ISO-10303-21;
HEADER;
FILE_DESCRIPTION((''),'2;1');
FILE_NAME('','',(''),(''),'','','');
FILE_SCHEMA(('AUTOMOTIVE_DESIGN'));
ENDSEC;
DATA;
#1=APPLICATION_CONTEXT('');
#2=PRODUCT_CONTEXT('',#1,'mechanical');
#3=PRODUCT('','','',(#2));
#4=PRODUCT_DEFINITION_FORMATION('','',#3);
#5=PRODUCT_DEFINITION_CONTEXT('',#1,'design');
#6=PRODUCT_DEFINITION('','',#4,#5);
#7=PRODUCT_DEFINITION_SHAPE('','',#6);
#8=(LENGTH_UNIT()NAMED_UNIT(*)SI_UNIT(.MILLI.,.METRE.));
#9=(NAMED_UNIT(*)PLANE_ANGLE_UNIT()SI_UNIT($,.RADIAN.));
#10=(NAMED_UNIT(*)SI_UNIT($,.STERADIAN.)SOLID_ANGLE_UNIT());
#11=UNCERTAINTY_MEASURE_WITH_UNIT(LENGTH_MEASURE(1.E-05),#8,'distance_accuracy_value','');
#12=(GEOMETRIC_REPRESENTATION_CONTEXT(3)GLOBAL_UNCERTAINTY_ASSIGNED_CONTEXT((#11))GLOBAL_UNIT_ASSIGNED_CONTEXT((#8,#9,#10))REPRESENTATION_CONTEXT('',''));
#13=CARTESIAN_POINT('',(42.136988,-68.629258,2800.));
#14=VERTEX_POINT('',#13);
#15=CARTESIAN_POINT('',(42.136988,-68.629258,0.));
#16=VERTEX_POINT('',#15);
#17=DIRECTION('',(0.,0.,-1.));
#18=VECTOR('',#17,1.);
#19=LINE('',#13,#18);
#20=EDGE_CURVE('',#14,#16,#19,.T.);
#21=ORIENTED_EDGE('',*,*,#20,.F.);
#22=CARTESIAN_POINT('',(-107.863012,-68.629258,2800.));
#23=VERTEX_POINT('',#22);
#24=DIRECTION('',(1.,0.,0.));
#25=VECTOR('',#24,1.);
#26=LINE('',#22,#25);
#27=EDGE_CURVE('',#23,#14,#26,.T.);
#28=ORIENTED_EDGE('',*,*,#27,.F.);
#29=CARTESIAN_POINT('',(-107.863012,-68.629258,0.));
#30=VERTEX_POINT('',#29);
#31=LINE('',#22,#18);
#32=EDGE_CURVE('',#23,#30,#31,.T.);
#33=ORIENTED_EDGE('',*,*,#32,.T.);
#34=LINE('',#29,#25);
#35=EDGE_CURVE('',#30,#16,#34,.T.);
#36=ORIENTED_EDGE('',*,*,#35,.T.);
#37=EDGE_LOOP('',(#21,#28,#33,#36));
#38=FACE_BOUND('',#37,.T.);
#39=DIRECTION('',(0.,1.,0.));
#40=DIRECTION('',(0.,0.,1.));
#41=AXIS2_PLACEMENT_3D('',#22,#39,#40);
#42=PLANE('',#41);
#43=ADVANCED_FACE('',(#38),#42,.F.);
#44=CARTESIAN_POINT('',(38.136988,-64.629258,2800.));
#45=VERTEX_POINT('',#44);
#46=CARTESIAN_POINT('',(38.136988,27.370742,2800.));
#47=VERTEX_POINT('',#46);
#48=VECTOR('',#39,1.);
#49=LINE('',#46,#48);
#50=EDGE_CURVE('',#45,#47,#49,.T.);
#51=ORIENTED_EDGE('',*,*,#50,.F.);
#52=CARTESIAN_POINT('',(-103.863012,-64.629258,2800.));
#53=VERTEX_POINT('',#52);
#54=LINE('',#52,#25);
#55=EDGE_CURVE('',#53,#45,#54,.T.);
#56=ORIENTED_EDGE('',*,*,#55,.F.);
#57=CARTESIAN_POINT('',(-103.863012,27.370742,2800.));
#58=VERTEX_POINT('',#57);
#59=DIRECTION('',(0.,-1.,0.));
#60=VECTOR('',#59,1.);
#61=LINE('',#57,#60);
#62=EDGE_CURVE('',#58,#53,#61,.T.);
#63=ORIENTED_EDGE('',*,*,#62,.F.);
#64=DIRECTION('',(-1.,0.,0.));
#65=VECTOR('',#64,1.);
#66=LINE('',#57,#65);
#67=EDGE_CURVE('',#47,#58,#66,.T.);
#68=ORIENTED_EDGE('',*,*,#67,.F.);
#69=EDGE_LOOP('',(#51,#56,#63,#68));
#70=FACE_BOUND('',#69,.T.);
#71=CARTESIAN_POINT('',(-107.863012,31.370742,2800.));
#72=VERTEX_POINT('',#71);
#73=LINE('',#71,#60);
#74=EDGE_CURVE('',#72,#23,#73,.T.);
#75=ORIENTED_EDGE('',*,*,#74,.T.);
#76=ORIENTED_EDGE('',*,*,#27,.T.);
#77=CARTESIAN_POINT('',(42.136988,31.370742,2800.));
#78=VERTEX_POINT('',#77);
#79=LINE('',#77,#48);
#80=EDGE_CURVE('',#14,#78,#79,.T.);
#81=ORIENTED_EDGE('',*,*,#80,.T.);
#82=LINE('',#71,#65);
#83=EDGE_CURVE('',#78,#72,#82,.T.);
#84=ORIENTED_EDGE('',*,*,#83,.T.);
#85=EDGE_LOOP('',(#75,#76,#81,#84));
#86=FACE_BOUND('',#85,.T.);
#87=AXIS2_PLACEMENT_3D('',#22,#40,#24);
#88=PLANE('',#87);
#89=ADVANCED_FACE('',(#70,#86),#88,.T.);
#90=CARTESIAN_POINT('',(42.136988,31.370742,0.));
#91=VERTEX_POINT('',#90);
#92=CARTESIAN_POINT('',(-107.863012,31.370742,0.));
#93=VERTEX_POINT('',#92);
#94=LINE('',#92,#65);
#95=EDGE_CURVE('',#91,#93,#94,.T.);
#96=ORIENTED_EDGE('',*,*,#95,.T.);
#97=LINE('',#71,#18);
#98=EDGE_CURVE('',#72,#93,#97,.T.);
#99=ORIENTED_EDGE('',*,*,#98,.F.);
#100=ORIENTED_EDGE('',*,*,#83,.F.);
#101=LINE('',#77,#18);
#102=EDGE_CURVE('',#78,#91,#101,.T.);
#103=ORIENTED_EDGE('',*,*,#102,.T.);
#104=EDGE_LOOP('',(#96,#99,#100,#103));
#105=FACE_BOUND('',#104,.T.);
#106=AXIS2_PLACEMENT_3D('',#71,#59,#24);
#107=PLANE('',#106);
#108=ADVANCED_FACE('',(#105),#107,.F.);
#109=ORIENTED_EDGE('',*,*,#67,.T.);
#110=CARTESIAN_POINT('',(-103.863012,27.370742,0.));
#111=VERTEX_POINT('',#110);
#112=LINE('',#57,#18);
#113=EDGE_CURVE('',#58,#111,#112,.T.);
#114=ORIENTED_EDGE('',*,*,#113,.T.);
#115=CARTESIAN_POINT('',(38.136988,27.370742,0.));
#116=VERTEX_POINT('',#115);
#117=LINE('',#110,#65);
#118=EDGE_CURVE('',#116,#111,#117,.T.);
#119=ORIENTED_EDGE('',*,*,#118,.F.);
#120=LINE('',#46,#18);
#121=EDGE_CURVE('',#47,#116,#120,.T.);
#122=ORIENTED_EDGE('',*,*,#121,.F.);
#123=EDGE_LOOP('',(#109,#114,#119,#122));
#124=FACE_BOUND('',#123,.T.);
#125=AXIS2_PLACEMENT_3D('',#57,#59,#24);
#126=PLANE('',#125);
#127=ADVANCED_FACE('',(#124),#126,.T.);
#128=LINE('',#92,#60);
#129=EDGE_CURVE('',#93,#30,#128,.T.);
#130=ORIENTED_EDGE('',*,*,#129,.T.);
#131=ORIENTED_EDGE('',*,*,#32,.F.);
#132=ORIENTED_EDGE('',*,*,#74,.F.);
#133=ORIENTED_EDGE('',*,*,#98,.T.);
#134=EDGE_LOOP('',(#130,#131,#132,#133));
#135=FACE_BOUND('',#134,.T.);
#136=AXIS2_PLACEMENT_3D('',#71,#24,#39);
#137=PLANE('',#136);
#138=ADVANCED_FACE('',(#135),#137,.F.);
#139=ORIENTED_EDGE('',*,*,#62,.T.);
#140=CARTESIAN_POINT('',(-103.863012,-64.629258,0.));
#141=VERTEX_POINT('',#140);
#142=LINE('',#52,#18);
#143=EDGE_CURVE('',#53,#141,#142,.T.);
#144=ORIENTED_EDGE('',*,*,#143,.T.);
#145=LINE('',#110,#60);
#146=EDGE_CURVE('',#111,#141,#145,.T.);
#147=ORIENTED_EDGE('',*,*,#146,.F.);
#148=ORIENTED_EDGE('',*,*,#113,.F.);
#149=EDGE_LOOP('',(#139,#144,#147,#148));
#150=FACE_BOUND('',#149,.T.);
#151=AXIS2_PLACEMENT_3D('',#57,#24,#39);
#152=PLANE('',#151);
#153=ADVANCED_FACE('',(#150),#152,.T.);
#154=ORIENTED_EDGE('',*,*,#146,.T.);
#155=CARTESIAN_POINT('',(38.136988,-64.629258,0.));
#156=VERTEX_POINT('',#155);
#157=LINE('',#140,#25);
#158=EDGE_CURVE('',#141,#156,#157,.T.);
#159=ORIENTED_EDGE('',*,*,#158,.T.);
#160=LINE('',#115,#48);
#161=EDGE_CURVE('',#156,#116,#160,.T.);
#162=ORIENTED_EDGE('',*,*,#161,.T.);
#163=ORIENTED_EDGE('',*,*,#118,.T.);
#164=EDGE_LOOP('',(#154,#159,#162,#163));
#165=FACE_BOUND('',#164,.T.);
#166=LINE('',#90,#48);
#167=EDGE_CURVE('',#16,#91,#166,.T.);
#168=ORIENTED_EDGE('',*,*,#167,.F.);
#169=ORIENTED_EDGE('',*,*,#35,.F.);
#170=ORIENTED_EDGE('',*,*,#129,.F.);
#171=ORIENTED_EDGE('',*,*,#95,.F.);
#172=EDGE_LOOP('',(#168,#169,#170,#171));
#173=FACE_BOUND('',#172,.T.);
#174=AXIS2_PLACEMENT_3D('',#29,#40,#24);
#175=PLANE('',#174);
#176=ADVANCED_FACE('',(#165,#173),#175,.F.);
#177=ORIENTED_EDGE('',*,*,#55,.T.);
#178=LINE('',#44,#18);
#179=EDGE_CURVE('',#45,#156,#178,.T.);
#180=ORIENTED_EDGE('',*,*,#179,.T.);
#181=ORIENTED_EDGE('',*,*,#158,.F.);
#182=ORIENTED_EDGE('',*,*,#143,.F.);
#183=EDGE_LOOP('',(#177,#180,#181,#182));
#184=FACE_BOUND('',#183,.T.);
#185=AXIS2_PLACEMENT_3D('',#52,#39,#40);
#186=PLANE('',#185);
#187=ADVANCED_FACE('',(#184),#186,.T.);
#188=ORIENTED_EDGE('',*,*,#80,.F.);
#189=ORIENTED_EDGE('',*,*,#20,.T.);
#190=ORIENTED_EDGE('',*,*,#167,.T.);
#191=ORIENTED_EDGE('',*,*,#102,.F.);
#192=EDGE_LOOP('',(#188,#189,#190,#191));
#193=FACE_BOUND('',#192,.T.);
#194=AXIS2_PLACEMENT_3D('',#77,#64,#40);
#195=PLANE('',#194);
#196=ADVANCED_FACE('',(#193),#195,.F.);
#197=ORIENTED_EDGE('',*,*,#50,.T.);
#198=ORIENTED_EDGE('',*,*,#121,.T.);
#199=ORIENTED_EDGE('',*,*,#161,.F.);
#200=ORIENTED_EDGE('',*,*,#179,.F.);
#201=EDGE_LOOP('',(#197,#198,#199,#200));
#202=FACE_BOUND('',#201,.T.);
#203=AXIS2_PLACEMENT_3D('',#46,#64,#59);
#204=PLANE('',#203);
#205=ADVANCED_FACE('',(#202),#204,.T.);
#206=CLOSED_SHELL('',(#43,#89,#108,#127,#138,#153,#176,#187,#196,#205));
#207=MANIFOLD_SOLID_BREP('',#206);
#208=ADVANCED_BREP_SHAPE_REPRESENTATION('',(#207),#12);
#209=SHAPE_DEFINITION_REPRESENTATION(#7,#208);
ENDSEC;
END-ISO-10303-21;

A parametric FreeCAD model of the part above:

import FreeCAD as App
import Part
import Sketcher


def add_polygon(sketch, points):
    """Adds a closed chain of lines whose ends are joined by coincident constraints."""
    first, n = sketch.GeometryCount, len(points)
    for a, b in zip(points, points[1:] + points[:1]):
        sketch.addGeometry(Part.LineSegment(App.Vector(*a, 0), App.Vector(*b, 0)), False)
    for i in range(n):
        sketch.addConstraint(Sketcher.Constraint("Coincident", first + i, 2, first + (i + 1) % n, 1))

doc = App.newDocument("Part")
body = doc.addObject("PartDesign::Body", "Body")

sketch1 = doc.addObject("Sketcher::SketchObject", "Sketch")
body.addObject(sketch1)
sketch1.AttachmentSupport = (doc.XY_Plane, [""])
sketch1.MapMode = "FlatFace"
add_polygon(sketch1, [(-108, 31), (-108, -69), (42, -69), (42, 31)])
add_polygon(sketch1, [(38, -65), (-104, -65), (-104, 27), (38, 27)])
sketch1.addConstraint([
    Sketcher.Constraint("Vertical", 0),
    Sketcher.Constraint("Horizontal", 1),
    Sketcher.Constraint("Vertical", 2),
    Sketcher.Constraint("Horizontal", 3),
    Sketcher.Constraint("Horizontal", 4),
    Sketcher.Constraint("Vertical", 5),
    Sketcher.Constraint("Horizontal", 6),
    Sketcher.Constraint("Vertical", 7),
    Sketcher.Constraint("DistanceX", 1, 1, 1, 2, 150.0),
    Sketcher.Constraint("DistanceX", 4, 2, 4, 1, 142.0),
    Sketcher.Constraint("DistanceY", 0, 2, 0, 1, 100.0),
    Sketcher.Constraint("DistanceY", 5, 1, 5, 2, 92.0),
    Sketcher.Constraint("DistanceX", 0, 2, 4, 2, 4.0),
    Sketcher.Constraint("DistanceY", 0, 2, 4, 2, 4.0),
    Sketcher.Constraint("DistanceY", 0, 2, -1, 1, 68.629258),
    Sketcher.Constraint("DistanceX", 0, 2, -1, 1, 107.863012),
])
pad1 = doc.addObject("PartDesign::Pad", "Pad")
body.addObject(pad1)
pad1.Profile = sketch1
pad1.Length = 2800

doc.recompute()
